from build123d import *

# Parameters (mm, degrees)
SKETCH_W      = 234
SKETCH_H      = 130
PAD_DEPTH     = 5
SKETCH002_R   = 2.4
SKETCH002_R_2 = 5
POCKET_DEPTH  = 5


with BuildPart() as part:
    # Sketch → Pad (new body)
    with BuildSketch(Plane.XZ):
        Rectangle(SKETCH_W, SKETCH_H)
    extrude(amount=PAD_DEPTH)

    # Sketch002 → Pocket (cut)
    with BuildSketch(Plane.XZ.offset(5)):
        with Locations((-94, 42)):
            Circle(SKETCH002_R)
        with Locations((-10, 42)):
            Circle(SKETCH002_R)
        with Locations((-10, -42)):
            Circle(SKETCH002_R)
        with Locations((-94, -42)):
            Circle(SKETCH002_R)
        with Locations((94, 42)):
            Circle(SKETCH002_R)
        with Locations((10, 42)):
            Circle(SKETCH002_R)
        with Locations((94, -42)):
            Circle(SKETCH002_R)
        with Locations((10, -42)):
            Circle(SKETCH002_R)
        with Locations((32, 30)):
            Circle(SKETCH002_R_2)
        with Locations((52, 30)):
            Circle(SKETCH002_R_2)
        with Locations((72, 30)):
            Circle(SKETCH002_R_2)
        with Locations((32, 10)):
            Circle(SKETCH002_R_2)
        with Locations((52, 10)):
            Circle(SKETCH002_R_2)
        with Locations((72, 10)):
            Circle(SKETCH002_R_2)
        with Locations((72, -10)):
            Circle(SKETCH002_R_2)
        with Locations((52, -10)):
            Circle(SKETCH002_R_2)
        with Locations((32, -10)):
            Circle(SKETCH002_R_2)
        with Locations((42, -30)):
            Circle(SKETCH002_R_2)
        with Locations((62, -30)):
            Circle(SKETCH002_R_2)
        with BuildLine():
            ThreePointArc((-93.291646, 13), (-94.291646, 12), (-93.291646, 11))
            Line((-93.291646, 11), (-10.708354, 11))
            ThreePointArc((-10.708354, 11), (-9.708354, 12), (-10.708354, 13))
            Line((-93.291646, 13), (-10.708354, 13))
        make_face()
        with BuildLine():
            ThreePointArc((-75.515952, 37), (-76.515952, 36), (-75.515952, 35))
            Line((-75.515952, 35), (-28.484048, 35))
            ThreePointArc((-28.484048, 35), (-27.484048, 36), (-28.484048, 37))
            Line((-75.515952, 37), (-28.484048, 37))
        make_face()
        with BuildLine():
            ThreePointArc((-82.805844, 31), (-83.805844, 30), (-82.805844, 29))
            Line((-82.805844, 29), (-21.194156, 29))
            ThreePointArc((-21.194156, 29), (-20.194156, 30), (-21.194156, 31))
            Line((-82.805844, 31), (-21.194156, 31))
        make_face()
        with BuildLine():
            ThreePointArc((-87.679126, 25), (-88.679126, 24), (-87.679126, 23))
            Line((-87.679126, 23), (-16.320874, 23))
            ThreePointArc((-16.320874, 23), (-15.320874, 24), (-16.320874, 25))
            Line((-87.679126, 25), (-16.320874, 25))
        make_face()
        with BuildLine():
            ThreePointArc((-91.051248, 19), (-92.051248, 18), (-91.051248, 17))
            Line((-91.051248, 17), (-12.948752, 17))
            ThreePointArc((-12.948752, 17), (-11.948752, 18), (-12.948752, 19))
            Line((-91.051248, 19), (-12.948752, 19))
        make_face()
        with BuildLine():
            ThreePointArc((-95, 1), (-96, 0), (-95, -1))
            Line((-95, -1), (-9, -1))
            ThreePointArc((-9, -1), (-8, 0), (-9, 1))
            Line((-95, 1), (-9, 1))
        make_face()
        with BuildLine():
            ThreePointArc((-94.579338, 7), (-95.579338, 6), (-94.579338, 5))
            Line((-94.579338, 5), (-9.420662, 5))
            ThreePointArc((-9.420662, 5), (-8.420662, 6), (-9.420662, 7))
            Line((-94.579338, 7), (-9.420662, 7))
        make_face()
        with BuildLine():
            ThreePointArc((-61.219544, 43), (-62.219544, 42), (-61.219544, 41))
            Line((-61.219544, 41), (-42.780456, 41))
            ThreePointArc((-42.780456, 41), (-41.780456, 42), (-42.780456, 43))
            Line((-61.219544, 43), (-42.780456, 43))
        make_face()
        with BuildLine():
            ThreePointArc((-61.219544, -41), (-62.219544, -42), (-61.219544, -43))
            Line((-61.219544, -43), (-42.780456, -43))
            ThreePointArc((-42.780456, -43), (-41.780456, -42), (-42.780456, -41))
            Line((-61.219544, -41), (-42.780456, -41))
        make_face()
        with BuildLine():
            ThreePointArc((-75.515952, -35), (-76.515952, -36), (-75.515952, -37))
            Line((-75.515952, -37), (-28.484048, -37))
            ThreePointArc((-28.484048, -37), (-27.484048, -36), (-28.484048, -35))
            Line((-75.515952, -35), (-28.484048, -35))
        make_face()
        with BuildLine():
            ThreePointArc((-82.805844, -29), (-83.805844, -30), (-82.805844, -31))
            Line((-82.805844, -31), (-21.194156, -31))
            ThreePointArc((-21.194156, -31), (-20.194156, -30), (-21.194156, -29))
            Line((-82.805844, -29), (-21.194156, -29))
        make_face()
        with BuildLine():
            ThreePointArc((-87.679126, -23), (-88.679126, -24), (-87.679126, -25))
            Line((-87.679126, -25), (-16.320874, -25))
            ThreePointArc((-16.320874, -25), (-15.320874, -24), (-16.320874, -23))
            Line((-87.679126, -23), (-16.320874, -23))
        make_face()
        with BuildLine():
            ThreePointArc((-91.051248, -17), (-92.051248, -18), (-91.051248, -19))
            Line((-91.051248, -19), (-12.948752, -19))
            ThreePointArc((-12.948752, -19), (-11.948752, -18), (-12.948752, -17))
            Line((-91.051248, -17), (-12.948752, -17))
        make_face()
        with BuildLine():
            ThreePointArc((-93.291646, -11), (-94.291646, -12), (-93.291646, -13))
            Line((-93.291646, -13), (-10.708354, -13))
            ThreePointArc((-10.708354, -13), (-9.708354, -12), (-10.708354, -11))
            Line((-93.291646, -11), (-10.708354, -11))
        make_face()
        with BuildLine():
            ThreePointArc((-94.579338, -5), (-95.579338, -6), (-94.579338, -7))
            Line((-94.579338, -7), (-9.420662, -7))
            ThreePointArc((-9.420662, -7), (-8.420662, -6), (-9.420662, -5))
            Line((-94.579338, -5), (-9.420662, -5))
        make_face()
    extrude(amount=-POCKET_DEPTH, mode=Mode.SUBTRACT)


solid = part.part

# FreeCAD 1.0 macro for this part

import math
import FreeCAD as App
import Part
import Sketcher

V = App.Vector
Q = App.Units.Quantity


def add_polygon(sketch, points):
    """Adds a closed chain of lines whose ends are joined by coincident constraints."""
    first, n = sketch.GeometryCount, len(points)
    for a, b in zip(points, points[1:] + points[:1]):
        sketch.addGeometry(Part.LineSegment(App.Vector(*a, 0), App.Vector(*b, 0)), False)
    for i in range(n):
        sketch.addConstraint(Sketcher.Constraint("Coincident", first + i, 2, first + (i + 1) % n, 1))

doc = App.newDocument("Part")
params = doc.addObject("Spreadsheet::Sheet", "Params")
for row, (alias, value) in enumerate([
    ("sketch1_width", "234 mm"),
    ("sketch1_height", "130 mm"),
    ("pad1_length", "5 mm"),
    ("sketch2_diameter", "10 mm"),
    ("sketch2_radius", "1 mm"),
    ("sketch2_diameter2", "4.8 mm"),
    ("sketch2_width", "86 mm"),
    ("pocket1_length", "5 mm"),
], start=1):
    params.set(f"A{row}", alias)
    params.set(f"B{row}", "=" + value)
    params.setAlias(f"B{row}", alias)

body = doc.addObject("PartDesign::Body", "Body")

sketch1 = body.newObject("Sketcher::SketchObject", "Sketch")
sketch1.AttachmentSupport = (doc.getObject("XZ_Plane"), [""])
sketch1.MapMode = "FlatFace"
add_polygon(sketch1, [(-117, 65), (-117, -65), (117, -65), (117, 65)])
sketch1.addConstraint([
    Sketcher.Constraint("Vertical", 0),
    Sketcher.Constraint("Horizontal", 1),
    Sketcher.Constraint("Vertical", 2),
    Sketcher.Constraint("Horizontal", 3),
    Sketcher.Constraint("Symmetric", 0, 2, 2, 2, -1, 1),
    Sketcher.Constraint("DistanceX", 1, 1, 1, 2, Q("234 mm")),
    Sketcher.Constraint("DistanceY", 0, 2, 0, 1, Q("130 mm")),
])
sketch1.setExpression("Constraints[9]", "Params.sketch1_width")
sketch1.setExpression("Constraints[10]", "Params.sketch1_height")
pad1 = body.newObject("PartDesign::Pad", "Pad")
pad1.Profile = sketch1
pad1.setExpression("Length", "Params.pad1_length")

sketch2 = body.newObject("Sketcher::SketchObject", "Sketch001")
sketch2.AttachmentSupport = (doc.getObject("XZ_Plane"), [""])
sketch2.MapMode = "FlatFace"
sketch2.AttachmentOffset = App.Placement(V(0, 0, 5), App.Rotation())
sketch2.addGeometry([
    Part.Circle(V(-94, 42, 0), V(0, 0, 1), 2.4),
    Part.Circle(V(-10, 42, 0), V(0, 0, 1), 2.4),
    Part.Circle(V(-10, -42, 0), V(0, 0, 1), 2.4),
    Part.Circle(V(-94, -42, 0), V(0, 0, 1), 2.4),
    Part.Circle(V(94, 42, 0), V(0, 0, 1), 2.4),
    Part.Circle(V(10, 42, 0), V(0, 0, 1), 2.4),
    Part.Circle(V(94, -42, 0), V(0, 0, 1), 2.4),
    Part.Circle(V(10, -42, 0), V(0, 0, 1), 2.4),
    Part.Circle(V(32, 30, 0), V(0, 0, 1), 5),
    Part.Circle(V(52, 30, 0), V(0, 0, 1), 5),
    Part.Circle(V(72, 30, 0), V(0, 0, 1), 5),
    Part.Circle(V(32, 10, 0), V(0, 0, 1), 5),
    Part.Circle(V(52, 10, 0), V(0, 0, 1), 5),
    Part.Circle(V(72, 10, 0), V(0, 0, 1), 5),
    Part.Circle(V(72, -10, 0), V(0, 0, 1), 5),
    Part.Circle(V(52, -10, 0), V(0, 0, 1), 5),
    Part.Circle(V(32, -10, 0), V(0, 0, 1), 5),
    Part.Circle(V(42, -30, 0), V(0, 0, 1), 5),
    Part.Circle(V(62, -30, 0), V(0, 0, 1), 5),
    Part.ArcOfCircle(Part.Circle(V(-93.3, 12, 0), V(0, 0, 1), 1), math.radians(90), math.radians(270)),
    Part.LineSegment(V(-93.3, 11, 0), V(-10.7, 11, 0)),
    Part.ArcOfCircle(Part.Circle(V(-10.7, 12, 0), V(0, 0, 1), 1), math.radians(-90), math.radians(90)),
    Part.LineSegment(V(-10.7, 13, 0), V(-93.3, 13, 0)),
    Part.ArcOfCircle(Part.Circle(V(-75.5, 36, 0), V(0, 0, 1), 1), math.radians(90), math.radians(270)),
    Part.LineSegment(V(-75.5, 35, 0), V(-28.5, 35, 0)),
    Part.ArcOfCircle(Part.Circle(V(-28.5, 36, 0), V(0, 0, 1), 1), math.radians(-90), math.radians(90)),
    Part.LineSegment(V(-28.5, 37, 0), V(-75.5, 37, 0)),
    Part.ArcOfCircle(Part.Circle(V(-82.8, 30, 0), V(0, 0, 1), 1), math.radians(90), math.radians(270)),
    Part.LineSegment(V(-82.8, 29, 0), V(-21.2, 29, 0)),
    Part.ArcOfCircle(Part.Circle(V(-21.2, 30, 0), V(0, 0, 1), 1), math.radians(-90), math.radians(90)),
    Part.LineSegment(V(-21.2, 31, 0), V(-82.8, 31, 0)),
    Part.ArcOfCircle(Part.Circle(V(-87.7, 24, 0), V(0, 0, 1), 1), math.radians(90), math.radians(270)),
    Part.LineSegment(V(-87.7, 23, 0), V(-16.3, 23, 0)),
    Part.ArcOfCircle(Part.Circle(V(-16.3, 24, 0), V(0, 0, 1), 1), math.radians(-90), math.radians(90)),
    Part.LineSegment(V(-16.3, 25, 0), V(-87.7, 25, 0)),
    Part.ArcOfCircle(Part.Circle(V(-91.1, 18, 0), V(0, 0, 1), 1), math.radians(90), math.radians(270)),
    Part.LineSegment(V(-91.1, 17, 0), V(-12.9, 17, 0)),
    Part.ArcOfCircle(Part.Circle(V(-12.9, 18, 0), V(0, 0, 1), 1), math.radians(-90), math.radians(90)),
    Part.LineSegment(V(-12.9, 19, 0), V(-91.1, 19, 0)),
    Part.ArcOfCircle(Part.Circle(V(-95, 0, 0), V(0, 0, 1), 1), math.radians(90), math.radians(270)),
    Part.LineSegment(V(-95, -1, 0), V(-9, -1, 0)),
    Part.ArcOfCircle(Part.Circle(V(-9, 0, 0), V(0, 0, 1), 1), math.radians(-90), math.radians(90)),
    Part.LineSegment(V(-9, 1, 0), V(-95, 1, 0)),
    Part.ArcOfCircle(Part.Circle(V(-94.6, 6, 0), V(0, 0, 1), 1), math.radians(90), math.radians(270)),
    Part.LineSegment(V(-94.6, 5, 0), V(-9.4, 5, 0)),
    Part.ArcOfCircle(Part.Circle(V(-9.4, 6, 0), V(0, 0, 1), 1), math.radians(-90), math.radians(90)),
    Part.LineSegment(V(-9.4, 7, 0), V(-94.6, 7, 0)),
    Part.ArcOfCircle(Part.Circle(V(-61.2, 42, 0), V(0, 0, 1), 1), math.radians(90), math.radians(270)),
    Part.LineSegment(V(-61.2, 41, 0), V(-42.8, 41, 0)),
    Part.ArcOfCircle(Part.Circle(V(-42.8, 42, 0), V(0, 0, 1), 1), math.radians(-90), math.radians(90)),
    Part.LineSegment(V(-42.8, 43, 0), V(-61.2, 43, 0)),
    Part.ArcOfCircle(Part.Circle(V(-61.2, -42, 0), V(0, 0, 1), 1), math.radians(90), math.radians(270)),
    Part.LineSegment(V(-61.2, -43, 0), V(-42.8, -43, 0)),
    Part.ArcOfCircle(Part.Circle(V(-42.8, -42, 0), V(0, 0, 1), 1), math.radians(-90), math.radians(90)),
    Part.LineSegment(V(-42.8, -41, 0), V(-61.2, -41, 0)),
    Part.ArcOfCircle(Part.Circle(V(-75.5, -36, 0), V(0, 0, 1), 1), math.radians(90), math.radians(270)),
    Part.LineSegment(V(-75.5, -37, 0), V(-28.5, -37, 0)),
    Part.ArcOfCircle(Part.Circle(V(-28.5, -36, 0), V(0, 0, 1), 1), math.radians(-90), math.radians(90)),
    Part.LineSegment(V(-28.5, -35, 0), V(-75.5, -35, 0)),
    Part.ArcOfCircle(Part.Circle(V(-82.8, -30, 0), V(0, 0, 1), 1), math.radians(90), math.radians(270)),
    Part.LineSegment(V(-82.8, -31, 0), V(-21.2, -31, 0)),
    Part.ArcOfCircle(Part.Circle(V(-21.2, -30, 0), V(0, 0, 1), 1), math.radians(-90), math.radians(90)),
    Part.LineSegment(V(-21.2, -29, 0), V(-82.8, -29, 0)),
    Part.ArcOfCircle(Part.Circle(V(-87.7, -24, 0), V(0, 0, 1), 1), math.radians(90), math.radians(270)),
    Part.LineSegment(V(-87.7, -25, 0), V(-16.3, -25, 0)),
    Part.ArcOfCircle(Part.Circle(V(-16.3, -24, 0), V(0, 0, 1), 1), math.radians(-90), math.radians(90)),
    Part.LineSegment(V(-16.3, -23, 0), V(-87.7, -23, 0)),
    Part.ArcOfCircle(Part.Circle(V(-91.1, -18, 0), V(0, 0, 1), 1), math.radians(90), math.radians(270)),
    Part.LineSegment(V(-91.1, -19, 0), V(-12.9, -19, 0)),
    Part.ArcOfCircle(Part.Circle(V(-12.9, -18, 0), V(0, 0, 1), 1), math.radians(-90), math.radians(90)),
    Part.LineSegment(V(-12.9, -17, 0), V(-91.1, -17, 0)),
    Part.ArcOfCircle(Part.Circle(V(-93.3, -12, 0), V(0, 0, 1), 1), math.radians(90), math.radians(270)),
    Part.LineSegment(V(-93.3, -13, 0), V(-10.7, -13, 0)),
    Part.ArcOfCircle(Part.Circle(V(-10.7, -12, 0), V(0, 0, 1), 1), math.radians(-90), math.radians(90)),
    Part.LineSegment(V(-10.7, -11, 0), V(-93.3, -11, 0)),
    Part.ArcOfCircle(Part.Circle(V(-94.6, -6, 0), V(0, 0, 1), 1), math.radians(90), math.radians(270)),
    Part.LineSegment(V(-94.6, -7, 0), V(-9.4, -7, 0)),
    Part.ArcOfCircle(Part.Circle(V(-9.4, -6, 0), V(0, 0, 1), 1), math.radians(-90), math.radians(90)),
    Part.LineSegment(V(-9.4, -5, 0), V(-94.6, -5, 0)),
], False)
sketch2.addConstraint([
    Sketcher.Constraint("Tangent", 19, 2, 20, 1),
    Sketcher.Constraint("Tangent", 20, 2, 21, 1),
    Sketcher.Constraint("Tangent", 21, 2, 22, 1),
    Sketcher.Constraint("Tangent", 22, 2, 19, 1),
    Sketcher.Constraint("Tangent", 23, 2, 24, 1),
    Sketcher.Constraint("Tangent", 24, 2, 25, 1),
    Sketcher.Constraint("Tangent", 25, 2, 26, 1),
    Sketcher.Constraint("Tangent", 26, 2, 23, 1),
    Sketcher.Constraint("Tangent", 27, 2, 28, 1),
    Sketcher.Constraint("Tangent", 28, 2, 29, 1),
    Sketcher.Constraint("Tangent", 29, 2, 30, 1),
    Sketcher.Constraint("Tangent", 30, 2, 27, 1),
    Sketcher.Constraint("Tangent", 31, 2, 32, 1),
    Sketcher.Constraint("Tangent", 32, 2, 33, 1),
    Sketcher.Constraint("Tangent", 33, 2, 34, 1),
    Sketcher.Constraint("Tangent", 34, 2, 31, 1),
    Sketcher.Constraint("Tangent", 35, 2, 36, 1),
    Sketcher.Constraint("Tangent", 36, 2, 37, 1),
    Sketcher.Constraint("Tangent", 37, 2, 38, 1),
    Sketcher.Constraint("Tangent", 38, 2, 35, 1),
    Sketcher.Constraint("Tangent", 39, 2, 40, 1),
    Sketcher.Constraint("Tangent", 40, 2, 41, 1),
    Sketcher.Constraint("Tangent", 41, 2, 42, 1),
    Sketcher.Constraint("Tangent", 42, 2, 39, 1),
    Sketcher.Constraint("Tangent", 43, 2, 44, 1),
    Sketcher.Constraint("Tangent", 44, 2, 45, 1),
    Sketcher.Constraint("Tangent", 45, 2, 46, 1),
    Sketcher.Constraint("Tangent", 46, 2, 43, 1),
    Sketcher.Constraint("Tangent", 47, 2, 48, 1),
    Sketcher.Constraint("Tangent", 48, 2, 49, 1),
    Sketcher.Constraint("Tangent", 49, 2, 50, 1),
    Sketcher.Constraint("Tangent", 50, 2, 47, 1),
    Sketcher.Constraint("Tangent", 51, 2, 52, 1),
    Sketcher.Constraint("Tangent", 52, 2, 53, 1),
    Sketcher.Constraint("Tangent", 53, 2, 54, 1),
    Sketcher.Constraint("Tangent", 54, 2, 51, 1),
    Sketcher.Constraint("Tangent", 55, 2, 56, 1),
    Sketcher.Constraint("Tangent", 56, 2, 57, 1),
    Sketcher.Constraint("Tangent", 57, 2, 58, 1),
    Sketcher.Constraint("Tangent", 58, 2, 55, 1),
    Sketcher.Constraint("Tangent", 59, 2, 60, 1),
    Sketcher.Constraint("Tangent", 60, 2, 61, 1),
    Sketcher.Constraint("Tangent", 61, 2, 62, 1),
    Sketcher.Constraint("Tangent", 62, 2, 59, 1),
    Sketcher.Constraint("Tangent", 63, 2, 64, 1),
    Sketcher.Constraint("Tangent", 64, 2, 65, 1),
    Sketcher.Constraint("Tangent", 65, 2, 66, 1),
    Sketcher.Constraint("Tangent", 66, 2, 63, 1),
    Sketcher.Constraint("Tangent", 67, 2, 68, 1),
    Sketcher.Constraint("Tangent", 68, 2, 69, 1),
    Sketcher.Constraint("Tangent", 69, 2, 70, 1),
    Sketcher.Constraint("Tangent", 70, 2, 67, 1),
    Sketcher.Constraint("Tangent", 71, 2, 72, 1),
    Sketcher.Constraint("Tangent", 72, 2, 73, 1),
    Sketcher.Constraint("Tangent", 73, 2, 74, 1),
    Sketcher.Constraint("Tangent", 74, 2, 71, 1),
    Sketcher.Constraint("Tangent", 75, 2, 76, 1),
    Sketcher.Constraint("Tangent", 76, 2, 77, 1),
    Sketcher.Constraint("Tangent", 77, 2, 78, 1),
    Sketcher.Constraint("Tangent", 78, 2, 75, 1),
    Sketcher.Constraint("Horizontal", 20),
    Sketcher.Constraint("Horizontal", 22),
    Sketcher.Constraint("Horizontal", 24),
    Sketcher.Constraint("Horizontal", 26),
    Sketcher.Constraint("Horizontal", 28),
    Sketcher.Constraint("Horizontal", 30),
    Sketcher.Constraint("Horizontal", 32),
    Sketcher.Constraint("Horizontal", 34),
    Sketcher.Constraint("Horizontal", 36),
    Sketcher.Constraint("Horizontal", 38),
    Sketcher.Constraint("Horizontal", 40),
    Sketcher.Constraint("Horizontal", 42),
    Sketcher.Constraint("Horizontal", 44),
    Sketcher.Constraint("Horizontal", 46),
    Sketcher.Constraint("Horizontal", 48),
    Sketcher.Constraint("Horizontal", 50),
    Sketcher.Constraint("Horizontal", 52),
    Sketcher.Constraint("Horizontal", 54),
    Sketcher.Constraint("Horizontal", 56),
    Sketcher.Constraint("Horizontal", 58),
    Sketcher.Constraint("Horizontal", 60),
    Sketcher.Constraint("Horizontal", 62),
    Sketcher.Constraint("Horizontal", 64),
    Sketcher.Constraint("Horizontal", 66),
    Sketcher.Constraint("Horizontal", 68),
    Sketcher.Constraint("Horizontal", 70),
    Sketcher.Constraint("Horizontal", 72),
    Sketcher.Constraint("Horizontal", 74),
    Sketcher.Constraint("Horizontal", 76),
    Sketcher.Constraint("Horizontal", 78),
    Sketcher.Constraint("Equal", 0, 1),
    Sketcher.Constraint("Equal", 1, 2),
    Sketcher.Constraint("Equal", 2, 3),
    Sketcher.Constraint("Equal", 3, 4),
    Sketcher.Constraint("Equal", 4, 5),
    Sketcher.Constraint("Equal", 5, 6),
    Sketcher.Constraint("Equal", 6, 7),
    Sketcher.Constraint("Equal", 8, 9),
    Sketcher.Constraint("Equal", 9, 10),
    Sketcher.Constraint("Equal", 10, 11),
    Sketcher.Constraint("Equal", 11, 12),
    Sketcher.Constraint("Equal", 12, 13),
    Sketcher.Constraint("Equal", 13, 14),
    Sketcher.Constraint("Equal", 14, 15),
    Sketcher.Constraint("Equal", 15, 16),
    Sketcher.Constraint("Equal", 16, 17),
    Sketcher.Constraint("Equal", 17, 18),
    Sketcher.Constraint("Equal", 21, 23),
    Sketcher.Constraint("Equal", 25, 27),
    Sketcher.Constraint("Equal", 29, 31),
    Sketcher.Constraint("Equal", 33, 35),
    Sketcher.Constraint("Equal", 37, 39),
    Sketcher.Constraint("Equal", 41, 43),
    Sketcher.Constraint("Equal", 45, 47),
    Sketcher.Constraint("Equal", 49, 51),
    Sketcher.Constraint("Equal", 53, 55),
    Sketcher.Constraint("Equal", 57, 59),
    Sketcher.Constraint("Equal", 61, 63),
    Sketcher.Constraint("Equal", 65, 67),
    Sketcher.Constraint("Equal", 69, 71),
    Sketcher.Constraint("Equal", 73, 75),
    Sketcher.Constraint("Symmetric", 3, 3, 4, 3, -1, 1),
    Sketcher.Constraint("Symmetric", 2, 3, 5, 3, -1, 1),
    Sketcher.Constraint("Symmetric", 0, 3, 6, 3, -1, 1),
    Sketcher.Constraint("Symmetric", 1, 3, 7, 3, -1, 1),
    Sketcher.Constraint("Symmetric", 0, 3, 4, 3, -2),
    Sketcher.Constraint("Symmetric", 1, 3, 5, 3, -2),
    Sketcher.Constraint("Symmetric", 13, 3, 14, 3, -1),
    Sketcher.Constraint("Symmetric", 12, 3, 15, 3, -1),
    Sketcher.Constraint("Symmetric", 11, 3, 16, 3, -1),
    Sketcher.Constraint("Symmetric", 47, 3, 51, 3, -1),
    Sketcher.Constraint("Symmetric", 23, 3, 55, 3, -1),
    Sketcher.Constraint("Symmetric", 27, 3, 59, 3, -1),
    Sketcher.Constraint("Symmetric", 31, 3, 63, 3, -1),
    Sketcher.Constraint("Symmetric", 35, 3, 67, 3, -1),
    Sketcher.Constraint("Symmetric", 19, 3, 71, 3, -1),
    Sketcher.Constraint("Symmetric", 43, 3, 75, 3, -1),
    Sketcher.Constraint("PointOnObject", 39, 3, -1),
    Sketcher.Constraint("Horizontal", 0, 3, 1, 3),
    Sketcher.Constraint("Horizontal", 8, 3, 9, 3),
    Sketcher.Constraint("Horizontal", 9, 3, 10, 3),
    Sketcher.Constraint("Horizontal", 11, 3, 12, 3),
    Sketcher.Constraint("Horizontal", 12, 3, 13, 3),
    Sketcher.Constraint("Horizontal", 17, 3, 18, 3),
    Sketcher.Constraint("Horizontal", 10, 3, 27, 3),
    Sketcher.Constraint("Horizontal", 5, 3, 47, 3),
    Sketcher.Constraint("Horizontal", 18, 3, 59, 3),
    Sketcher.Constraint("Vertical", 8, 3, 11, 3),
    Sketcher.Constraint("Vertical", 9, 3, 12, 3),
    Sketcher.Constraint("Vertical", 10, 3, 13, 3),
    Sketcher.Constraint("Vertical", 49, 3, 53, 3),
    Sketcher.Constraint("Vertical", 25, 3, 57, 3),
    Sketcher.Constraint("Vertical", 29, 3, 61, 3),
    Sketcher.Constraint("Vertical", 33, 3, 65, 3),
    Sketcher.Constraint("Vertical", 37, 3, 69, 3),
    Sketcher.Constraint("Vertical", 21, 3, 73, 3),
    Sketcher.Constraint("Vertical", 45, 3, 77, 3),
    Sketcher.Constraint("Diameter", 8, Q("10 mm")),
    Sketcher.Constraint("Radius", 19, Q("1 mm")),
    Sketcher.Constraint("Diameter", 0, Q("4.8 mm")),
    Sketcher.Constraint("DistanceX", 40, 1, 40, 2, Q("86 mm")),
    Sketcher.Constraint("DistanceX", 0, 3, -1, 1, Q("94 mm")),
    Sketcher.Constraint("DistanceY", -1, 1, 0, 3, Q("42 mm")),
    Sketcher.Constraint("DistanceX", 1, 3, -1, 1, Q("10 mm")),
    Sketcher.Constraint("DistanceX", -1, 1, 8, 3, Q("32 mm")),
    Sketcher.Constraint("DistanceY", -1, 1, 8, 3, Q("30 mm")),
    Sketcher.Constraint("DistanceX", -1, 1, 9, 3, Q("52 mm")),
    Sketcher.Constraint("DistanceX", -1, 1, 10, 3, Q("72 mm")),
    Sketcher.Constraint("DistanceY", -1, 1, 11, 3, Q("10 mm")),
    Sketcher.Constraint("DistanceX", -1, 1, 17, 3, Q("42 mm")),
    Sketcher.Constraint("DistanceX", -1, 1, 18, 3, Q("62 mm")),
    Sketcher.Constraint("DistanceY", -1, 1, 19, 3, Q("12 mm")),
    Sketcher.Constraint("DistanceY", -1, 1, 23, 3, Q("36 mm")),
    Sketcher.Constraint("DistanceY", -1, 1, 31, 3, Q("24 mm")),
    Sketcher.Constraint("DistanceY", -1, 1, 35, 3, Q("18 mm")),
    Sketcher.Constraint("DistanceX", 39, 3, -1, 1, Q("95 mm")),
    Sketcher.Constraint("DistanceY", -1, 1, 43, 3, Q("6 mm")),
    Sketcher.Constraint("DistanceX", 20, 1, 20, 2, Q("82.583292 mm")),
    Sketcher.Constraint("DistanceX", 32, 1, 32, 2, Q("71.358252 mm")),
    Sketcher.Constraint("DistanceX", 24, 1, 24, 2, Q("47.031904 mm")),
    Sketcher.Constraint("DistanceX", 28, 1, 28, 2, Q("61.611688 mm")),
    Sketcher.Constraint("DistanceX", 36, 1, 36, 2, Q("78.102496 mm")),
    Sketcher.Constraint("DistanceX", 44, 1, 44, 2, Q("85.158676 mm")),
    Sketcher.Constraint("DistanceX", 48, 1, 48, 2, Q("18.439088 mm")),
    Sketcher.Constraint("DistanceX", 23, 3, -1, 1, Q("75.515952 mm")),
    Sketcher.Constraint("DistanceX", 35, 3, -1, 1, Q("91.051248 mm")),
    Sketcher.Constraint("DistanceX", 43, 3, -1, 1, Q("94.579338 mm")),
    Sketcher.Constraint("DistanceX", 19, 3, -1, 1, Q("93.291646 mm")),
    Sketcher.Constraint("DistanceX", 27, 3, -1, 1, Q("82.805844 mm")),
    Sketcher.Constraint("DistanceX", 31, 3, -1, 1, Q("87.679126 mm")),
    Sketcher.Constraint("DistanceX", 47, 3, -1, 1, Q("61.219544 mm")),
])
sketch2.setExpression("Constraints[157]", "Params.sketch2_diameter")
sketch2.setExpression("Constraints[158]", "Params.sketch2_radius")
sketch2.setExpression("Constraints[159]", "Params.sketch2_diameter2")
sketch2.setExpression("Constraints[160]", "Params.sketch2_width")
pocket1 = body.newObject("PartDesign::Pocket", "Pocket")
pocket1.Profile = sketch2
pocket1.setExpression("Length", "Params.pocket1_length")

doc.recompute()
